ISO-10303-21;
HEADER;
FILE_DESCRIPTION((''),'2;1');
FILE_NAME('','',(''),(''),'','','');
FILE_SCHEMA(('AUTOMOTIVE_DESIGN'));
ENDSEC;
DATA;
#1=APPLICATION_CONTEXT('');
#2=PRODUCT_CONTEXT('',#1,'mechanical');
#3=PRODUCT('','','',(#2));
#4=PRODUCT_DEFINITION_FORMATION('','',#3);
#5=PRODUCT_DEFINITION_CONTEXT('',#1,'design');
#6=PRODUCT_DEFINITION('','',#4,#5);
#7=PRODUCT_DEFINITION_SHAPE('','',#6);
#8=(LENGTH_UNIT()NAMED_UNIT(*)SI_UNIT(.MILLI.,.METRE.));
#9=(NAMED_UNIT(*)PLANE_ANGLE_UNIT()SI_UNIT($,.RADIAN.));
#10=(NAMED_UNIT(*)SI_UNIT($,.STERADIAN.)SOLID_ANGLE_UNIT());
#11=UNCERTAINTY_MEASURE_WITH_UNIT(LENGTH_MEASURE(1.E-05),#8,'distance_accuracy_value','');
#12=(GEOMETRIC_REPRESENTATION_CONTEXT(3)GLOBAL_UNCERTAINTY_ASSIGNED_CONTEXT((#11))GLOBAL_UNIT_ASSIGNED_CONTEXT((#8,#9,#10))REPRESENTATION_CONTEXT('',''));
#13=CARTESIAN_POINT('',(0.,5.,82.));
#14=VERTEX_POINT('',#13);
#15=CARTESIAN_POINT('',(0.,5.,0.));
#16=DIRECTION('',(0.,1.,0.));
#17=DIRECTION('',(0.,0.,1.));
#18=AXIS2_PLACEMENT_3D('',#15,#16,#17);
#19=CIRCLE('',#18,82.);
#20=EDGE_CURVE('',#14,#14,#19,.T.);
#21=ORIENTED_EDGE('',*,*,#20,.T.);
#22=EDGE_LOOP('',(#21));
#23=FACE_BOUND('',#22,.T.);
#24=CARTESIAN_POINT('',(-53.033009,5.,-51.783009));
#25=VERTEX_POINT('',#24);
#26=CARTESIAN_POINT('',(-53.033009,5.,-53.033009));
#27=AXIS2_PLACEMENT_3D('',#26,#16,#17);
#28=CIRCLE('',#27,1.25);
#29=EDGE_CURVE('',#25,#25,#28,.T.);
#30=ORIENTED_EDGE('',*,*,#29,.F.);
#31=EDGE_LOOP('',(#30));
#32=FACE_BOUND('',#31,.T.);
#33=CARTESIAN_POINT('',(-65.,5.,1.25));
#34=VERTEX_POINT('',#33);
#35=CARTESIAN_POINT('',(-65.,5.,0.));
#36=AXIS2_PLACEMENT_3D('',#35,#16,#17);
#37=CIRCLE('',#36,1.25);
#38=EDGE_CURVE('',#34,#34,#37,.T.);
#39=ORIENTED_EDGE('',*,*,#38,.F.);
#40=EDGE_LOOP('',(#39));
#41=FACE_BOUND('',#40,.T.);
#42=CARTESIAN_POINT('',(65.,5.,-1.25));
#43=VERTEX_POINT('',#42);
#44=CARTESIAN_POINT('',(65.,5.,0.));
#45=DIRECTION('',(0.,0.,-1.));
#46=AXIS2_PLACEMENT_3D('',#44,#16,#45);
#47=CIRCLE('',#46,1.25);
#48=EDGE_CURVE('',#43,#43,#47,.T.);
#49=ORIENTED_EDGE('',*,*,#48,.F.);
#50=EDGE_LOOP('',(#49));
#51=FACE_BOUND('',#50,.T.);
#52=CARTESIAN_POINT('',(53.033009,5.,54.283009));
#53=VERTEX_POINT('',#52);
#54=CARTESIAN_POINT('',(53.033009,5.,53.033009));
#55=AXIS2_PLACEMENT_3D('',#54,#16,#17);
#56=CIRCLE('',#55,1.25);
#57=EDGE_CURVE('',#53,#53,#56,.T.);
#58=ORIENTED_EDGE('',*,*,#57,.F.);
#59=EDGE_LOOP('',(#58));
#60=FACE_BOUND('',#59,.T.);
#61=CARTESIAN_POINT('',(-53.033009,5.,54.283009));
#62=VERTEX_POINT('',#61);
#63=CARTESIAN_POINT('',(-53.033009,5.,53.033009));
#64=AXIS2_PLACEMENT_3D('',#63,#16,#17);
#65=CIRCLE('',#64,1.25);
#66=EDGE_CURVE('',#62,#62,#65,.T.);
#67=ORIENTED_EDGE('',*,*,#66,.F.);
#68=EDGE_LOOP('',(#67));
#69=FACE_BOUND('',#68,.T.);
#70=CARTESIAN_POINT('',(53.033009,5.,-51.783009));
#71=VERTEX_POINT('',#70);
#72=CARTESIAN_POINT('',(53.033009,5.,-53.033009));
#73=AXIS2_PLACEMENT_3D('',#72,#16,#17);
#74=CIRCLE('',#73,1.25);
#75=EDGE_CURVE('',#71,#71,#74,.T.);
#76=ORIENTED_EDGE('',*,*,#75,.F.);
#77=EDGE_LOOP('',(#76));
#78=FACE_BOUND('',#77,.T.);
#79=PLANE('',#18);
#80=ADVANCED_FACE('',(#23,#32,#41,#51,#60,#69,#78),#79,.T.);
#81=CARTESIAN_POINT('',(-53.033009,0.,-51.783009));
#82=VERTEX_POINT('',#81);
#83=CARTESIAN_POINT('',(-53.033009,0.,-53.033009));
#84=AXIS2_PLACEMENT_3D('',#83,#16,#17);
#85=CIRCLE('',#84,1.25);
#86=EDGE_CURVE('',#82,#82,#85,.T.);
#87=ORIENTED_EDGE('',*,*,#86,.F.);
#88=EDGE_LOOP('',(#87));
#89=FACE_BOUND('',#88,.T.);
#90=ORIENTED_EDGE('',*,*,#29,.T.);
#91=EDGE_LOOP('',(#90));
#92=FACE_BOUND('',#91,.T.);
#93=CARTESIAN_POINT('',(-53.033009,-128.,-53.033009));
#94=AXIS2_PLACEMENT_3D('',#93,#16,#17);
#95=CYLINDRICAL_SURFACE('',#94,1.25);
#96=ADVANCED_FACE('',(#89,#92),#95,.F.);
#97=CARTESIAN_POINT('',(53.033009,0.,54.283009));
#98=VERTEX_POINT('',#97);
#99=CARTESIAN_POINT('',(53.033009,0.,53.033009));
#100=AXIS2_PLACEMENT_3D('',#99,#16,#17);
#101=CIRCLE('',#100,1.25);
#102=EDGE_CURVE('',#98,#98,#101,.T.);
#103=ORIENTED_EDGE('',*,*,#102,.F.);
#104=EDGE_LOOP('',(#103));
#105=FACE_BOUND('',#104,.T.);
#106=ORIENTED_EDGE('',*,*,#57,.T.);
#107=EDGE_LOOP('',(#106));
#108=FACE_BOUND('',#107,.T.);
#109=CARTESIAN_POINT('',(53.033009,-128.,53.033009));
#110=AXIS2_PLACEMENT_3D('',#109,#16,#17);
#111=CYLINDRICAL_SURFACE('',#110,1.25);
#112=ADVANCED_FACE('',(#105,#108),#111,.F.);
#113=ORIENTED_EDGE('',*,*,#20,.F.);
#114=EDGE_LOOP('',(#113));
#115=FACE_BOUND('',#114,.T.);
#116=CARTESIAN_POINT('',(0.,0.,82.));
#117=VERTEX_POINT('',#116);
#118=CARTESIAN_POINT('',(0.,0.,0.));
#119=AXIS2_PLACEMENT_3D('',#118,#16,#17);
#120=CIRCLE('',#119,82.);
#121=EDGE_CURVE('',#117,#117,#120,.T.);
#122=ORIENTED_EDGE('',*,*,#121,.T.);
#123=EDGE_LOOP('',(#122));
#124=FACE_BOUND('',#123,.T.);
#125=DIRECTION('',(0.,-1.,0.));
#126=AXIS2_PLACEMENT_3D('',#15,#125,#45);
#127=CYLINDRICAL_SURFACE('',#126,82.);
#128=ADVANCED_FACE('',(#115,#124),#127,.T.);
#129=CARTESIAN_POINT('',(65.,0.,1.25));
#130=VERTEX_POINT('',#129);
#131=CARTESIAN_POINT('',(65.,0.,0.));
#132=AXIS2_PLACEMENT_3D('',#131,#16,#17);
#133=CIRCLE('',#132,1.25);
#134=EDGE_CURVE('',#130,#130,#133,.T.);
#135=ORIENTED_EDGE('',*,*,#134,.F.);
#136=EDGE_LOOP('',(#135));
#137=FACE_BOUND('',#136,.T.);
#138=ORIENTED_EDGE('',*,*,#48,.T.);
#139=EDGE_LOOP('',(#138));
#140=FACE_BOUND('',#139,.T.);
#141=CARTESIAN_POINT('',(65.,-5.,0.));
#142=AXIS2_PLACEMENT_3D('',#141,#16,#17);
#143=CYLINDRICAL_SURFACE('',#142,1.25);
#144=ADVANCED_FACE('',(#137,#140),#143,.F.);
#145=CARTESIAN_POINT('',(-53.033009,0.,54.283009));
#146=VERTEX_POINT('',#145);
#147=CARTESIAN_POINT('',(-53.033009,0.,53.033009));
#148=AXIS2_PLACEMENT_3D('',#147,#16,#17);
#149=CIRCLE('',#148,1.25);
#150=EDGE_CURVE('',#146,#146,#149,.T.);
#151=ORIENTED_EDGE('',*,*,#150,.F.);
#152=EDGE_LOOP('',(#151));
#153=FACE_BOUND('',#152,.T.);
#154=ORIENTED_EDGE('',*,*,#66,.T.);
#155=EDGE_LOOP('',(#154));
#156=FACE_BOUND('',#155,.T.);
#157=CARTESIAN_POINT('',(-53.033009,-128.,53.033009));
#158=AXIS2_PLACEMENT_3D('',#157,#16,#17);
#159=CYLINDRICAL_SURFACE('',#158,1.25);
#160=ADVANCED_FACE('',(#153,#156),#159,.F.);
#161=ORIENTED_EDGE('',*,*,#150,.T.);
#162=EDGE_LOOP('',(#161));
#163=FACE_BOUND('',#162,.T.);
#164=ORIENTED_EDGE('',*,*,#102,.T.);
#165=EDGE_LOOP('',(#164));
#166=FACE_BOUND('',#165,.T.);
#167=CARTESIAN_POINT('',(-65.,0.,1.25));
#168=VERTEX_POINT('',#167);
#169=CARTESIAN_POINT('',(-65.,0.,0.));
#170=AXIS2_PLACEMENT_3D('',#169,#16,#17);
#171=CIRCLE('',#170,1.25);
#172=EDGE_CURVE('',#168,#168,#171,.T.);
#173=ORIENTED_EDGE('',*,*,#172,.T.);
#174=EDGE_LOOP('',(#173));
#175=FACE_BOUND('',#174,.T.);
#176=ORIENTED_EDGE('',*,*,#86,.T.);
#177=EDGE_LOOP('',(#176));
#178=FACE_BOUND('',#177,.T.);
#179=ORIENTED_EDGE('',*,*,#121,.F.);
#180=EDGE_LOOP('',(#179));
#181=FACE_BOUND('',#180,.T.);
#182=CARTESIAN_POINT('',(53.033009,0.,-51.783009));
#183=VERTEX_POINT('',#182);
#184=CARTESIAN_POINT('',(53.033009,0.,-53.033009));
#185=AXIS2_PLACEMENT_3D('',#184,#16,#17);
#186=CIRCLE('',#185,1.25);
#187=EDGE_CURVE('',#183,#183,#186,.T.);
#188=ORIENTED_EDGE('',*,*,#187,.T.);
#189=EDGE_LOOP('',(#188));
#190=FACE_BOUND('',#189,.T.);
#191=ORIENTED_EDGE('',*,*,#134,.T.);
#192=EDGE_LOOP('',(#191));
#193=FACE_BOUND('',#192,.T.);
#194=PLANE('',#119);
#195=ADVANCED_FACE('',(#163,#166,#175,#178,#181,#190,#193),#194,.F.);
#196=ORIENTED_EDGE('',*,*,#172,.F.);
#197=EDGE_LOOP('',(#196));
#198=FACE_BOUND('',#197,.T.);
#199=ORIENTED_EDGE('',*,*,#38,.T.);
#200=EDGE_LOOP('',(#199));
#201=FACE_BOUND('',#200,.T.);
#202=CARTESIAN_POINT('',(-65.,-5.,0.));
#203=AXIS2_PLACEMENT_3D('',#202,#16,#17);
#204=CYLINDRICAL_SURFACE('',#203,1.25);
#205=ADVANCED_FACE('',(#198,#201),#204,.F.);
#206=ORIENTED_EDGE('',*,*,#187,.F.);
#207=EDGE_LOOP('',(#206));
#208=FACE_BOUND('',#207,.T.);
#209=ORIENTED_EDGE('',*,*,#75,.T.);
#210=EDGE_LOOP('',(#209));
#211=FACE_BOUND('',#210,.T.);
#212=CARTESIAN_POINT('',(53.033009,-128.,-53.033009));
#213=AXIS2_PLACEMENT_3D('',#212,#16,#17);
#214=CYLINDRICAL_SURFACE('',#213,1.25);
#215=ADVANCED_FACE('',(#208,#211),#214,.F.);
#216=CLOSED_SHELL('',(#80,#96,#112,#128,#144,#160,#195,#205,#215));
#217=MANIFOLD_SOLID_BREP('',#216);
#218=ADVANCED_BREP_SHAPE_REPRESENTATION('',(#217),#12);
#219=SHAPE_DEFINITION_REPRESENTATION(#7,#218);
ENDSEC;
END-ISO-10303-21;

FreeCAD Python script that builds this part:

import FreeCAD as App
import Part
import Sketcher

V = App.Vector

doc = App.newDocument("Part")
params = doc.addObject("Spreadsheet::Sheet", "Params")
for row, (alias, value) in enumerate([
    ("sketch1_diameter", "164 mm"),
    ("pad1_length", "5 mm"),
    ("sketch2_diameter", "2.5 mm"),
    ("pocket1_length", "133 mm"),
    ("sketch3_diameter", "2.5 mm"),
    ("pocket2_length", "10 mm"),
], start=1):
    params.set(f"A{row}", alias)
    params.set(f"B{row}", "=" + value)
    params.setAlias(f"B{row}", alias)

body = doc.addObject("PartDesign::Body", "Body")

# Sketch on XZ plane
sketch1 = body.newObject("Sketcher::SketchObject", "Sketch")
sketch1.AttachmentSupport = (doc.getObject("XZ_Plane"), [""])
sketch1.MapMode = "FlatFace"
sketch1.addGeometry(Part.Circle(V(0, 0, 0), V(0, 0, 1), 82), False)
sketch1.addConstraint([
    Sketcher.Constraint("Coincident", 0, 3, -1, 1),
    Sketcher.Constraint("Diameter", 0, 164.0),
])
sketch1.setExpression("Constraints[1]", "Params.sketch1_diameter")
pad1 = body.newObject("PartDesign::Pad", "Pad")
pad1.Profile = sketch1
pad1.setExpression("Length", "Params.pad1_length")
pad1.Reversed = True

# Sketch on XZ plane
sketch2 = body.newObject("Sketcher::SketchObject", "Sketch001")
sketch2.AttachmentSupport = (doc.getObject("XZ_Plane"), [""])
sketch2.MapMode = "FlatFace"
sketch2.AttachmentOffset = App.Placement(V(0, 0, -5), App.Rotation())
sketch2.addGeometry([
    Part.Circle(V(-53, -53, 0), V(0, 0, 1), 1.2),
    Part.Circle(V(53, -53, 0), V(0, 0, 1), 1.2),
    Part.Circle(V(53, 53, 0), V(0, 0, 1), 1.2),
    Part.Circle(V(-53, 53, 0), V(0, 0, 1), 1.2),
], False)
sketch2.addConstraint([
    Sketcher.Constraint("Equal", 0, 1),
    Sketcher.Constraint("Equal", 1, 2),
    Sketcher.Constraint("Equal", 2, 3),
    Sketcher.Constraint("Symmetric", 0, 3, 2, 3, -1, 1),
    Sketcher.Constraint("Symmetric", 1, 3, 3, 3, -1, 1),
    Sketcher.Constraint("Symmetric", 0, 3, 1, 3, -2),
    Sketcher.Constraint("Diameter", 0, 2.5),
    Sketcher.Constraint("DistanceX", 0, 3, -1, 1, 53.033009),
    Sketcher.Constraint("DistanceY", 0, 3, -1, 1, 53.033009),
])
sketch2.setExpression("Constraints[6]", "Params.sketch2_diameter")
pocket1 = body.newObject("PartDesign::Pocket", "Pocket")
pocket1.Profile = sketch2
pocket1.setExpression("Length", "Params.pocket1_length")
pocket1.Reversed = True

# Sketch on XZ plane
sketch3 = body.newObject("Sketcher::SketchObject", "Sketch002")
sketch3.AttachmentSupport = (doc.getObject("XZ_Plane"), [""])
sketch3.MapMode = "FlatFace"
sketch3.AttachmentOffset = App.Placement(V(0, 0, -5), App.Rotation())
sketch3.addGeometry(Part.Circle(V(-65, 0, 0), V(0, 0, 1), 1.2), False)
sketch3.addConstraint([
    Sketcher.Constraint("PointOnObject", 0, 3, -1),
    Sketcher.Constraint("Diameter", 0, 2.5),
    Sketcher.Constraint("DistanceX", 0, 3, -1, 1, 65.0),
])
sketch3.setExpression("Constraints[1]", "Params.sketch3_diameter")
pocket2 = body.newObject("PartDesign::Pocket", "Pocket001")
pocket2.Profile = sketch3
pocket2.setExpression("Length", "Params.pocket2_length")
pocket2.Reversed = True
doc.recompute()

polarpattern = body.newObject("PartDesign::PolarPattern", "PolarPattern")
polarpattern.Originals = [pocket2]
polarpattern.Axis = (doc.getObject("Y_Axis"), [""])
polarpattern.Angle = 360
polarpattern.Occurrences = 2
body.Tip = polarpattern

doc.recompute()
